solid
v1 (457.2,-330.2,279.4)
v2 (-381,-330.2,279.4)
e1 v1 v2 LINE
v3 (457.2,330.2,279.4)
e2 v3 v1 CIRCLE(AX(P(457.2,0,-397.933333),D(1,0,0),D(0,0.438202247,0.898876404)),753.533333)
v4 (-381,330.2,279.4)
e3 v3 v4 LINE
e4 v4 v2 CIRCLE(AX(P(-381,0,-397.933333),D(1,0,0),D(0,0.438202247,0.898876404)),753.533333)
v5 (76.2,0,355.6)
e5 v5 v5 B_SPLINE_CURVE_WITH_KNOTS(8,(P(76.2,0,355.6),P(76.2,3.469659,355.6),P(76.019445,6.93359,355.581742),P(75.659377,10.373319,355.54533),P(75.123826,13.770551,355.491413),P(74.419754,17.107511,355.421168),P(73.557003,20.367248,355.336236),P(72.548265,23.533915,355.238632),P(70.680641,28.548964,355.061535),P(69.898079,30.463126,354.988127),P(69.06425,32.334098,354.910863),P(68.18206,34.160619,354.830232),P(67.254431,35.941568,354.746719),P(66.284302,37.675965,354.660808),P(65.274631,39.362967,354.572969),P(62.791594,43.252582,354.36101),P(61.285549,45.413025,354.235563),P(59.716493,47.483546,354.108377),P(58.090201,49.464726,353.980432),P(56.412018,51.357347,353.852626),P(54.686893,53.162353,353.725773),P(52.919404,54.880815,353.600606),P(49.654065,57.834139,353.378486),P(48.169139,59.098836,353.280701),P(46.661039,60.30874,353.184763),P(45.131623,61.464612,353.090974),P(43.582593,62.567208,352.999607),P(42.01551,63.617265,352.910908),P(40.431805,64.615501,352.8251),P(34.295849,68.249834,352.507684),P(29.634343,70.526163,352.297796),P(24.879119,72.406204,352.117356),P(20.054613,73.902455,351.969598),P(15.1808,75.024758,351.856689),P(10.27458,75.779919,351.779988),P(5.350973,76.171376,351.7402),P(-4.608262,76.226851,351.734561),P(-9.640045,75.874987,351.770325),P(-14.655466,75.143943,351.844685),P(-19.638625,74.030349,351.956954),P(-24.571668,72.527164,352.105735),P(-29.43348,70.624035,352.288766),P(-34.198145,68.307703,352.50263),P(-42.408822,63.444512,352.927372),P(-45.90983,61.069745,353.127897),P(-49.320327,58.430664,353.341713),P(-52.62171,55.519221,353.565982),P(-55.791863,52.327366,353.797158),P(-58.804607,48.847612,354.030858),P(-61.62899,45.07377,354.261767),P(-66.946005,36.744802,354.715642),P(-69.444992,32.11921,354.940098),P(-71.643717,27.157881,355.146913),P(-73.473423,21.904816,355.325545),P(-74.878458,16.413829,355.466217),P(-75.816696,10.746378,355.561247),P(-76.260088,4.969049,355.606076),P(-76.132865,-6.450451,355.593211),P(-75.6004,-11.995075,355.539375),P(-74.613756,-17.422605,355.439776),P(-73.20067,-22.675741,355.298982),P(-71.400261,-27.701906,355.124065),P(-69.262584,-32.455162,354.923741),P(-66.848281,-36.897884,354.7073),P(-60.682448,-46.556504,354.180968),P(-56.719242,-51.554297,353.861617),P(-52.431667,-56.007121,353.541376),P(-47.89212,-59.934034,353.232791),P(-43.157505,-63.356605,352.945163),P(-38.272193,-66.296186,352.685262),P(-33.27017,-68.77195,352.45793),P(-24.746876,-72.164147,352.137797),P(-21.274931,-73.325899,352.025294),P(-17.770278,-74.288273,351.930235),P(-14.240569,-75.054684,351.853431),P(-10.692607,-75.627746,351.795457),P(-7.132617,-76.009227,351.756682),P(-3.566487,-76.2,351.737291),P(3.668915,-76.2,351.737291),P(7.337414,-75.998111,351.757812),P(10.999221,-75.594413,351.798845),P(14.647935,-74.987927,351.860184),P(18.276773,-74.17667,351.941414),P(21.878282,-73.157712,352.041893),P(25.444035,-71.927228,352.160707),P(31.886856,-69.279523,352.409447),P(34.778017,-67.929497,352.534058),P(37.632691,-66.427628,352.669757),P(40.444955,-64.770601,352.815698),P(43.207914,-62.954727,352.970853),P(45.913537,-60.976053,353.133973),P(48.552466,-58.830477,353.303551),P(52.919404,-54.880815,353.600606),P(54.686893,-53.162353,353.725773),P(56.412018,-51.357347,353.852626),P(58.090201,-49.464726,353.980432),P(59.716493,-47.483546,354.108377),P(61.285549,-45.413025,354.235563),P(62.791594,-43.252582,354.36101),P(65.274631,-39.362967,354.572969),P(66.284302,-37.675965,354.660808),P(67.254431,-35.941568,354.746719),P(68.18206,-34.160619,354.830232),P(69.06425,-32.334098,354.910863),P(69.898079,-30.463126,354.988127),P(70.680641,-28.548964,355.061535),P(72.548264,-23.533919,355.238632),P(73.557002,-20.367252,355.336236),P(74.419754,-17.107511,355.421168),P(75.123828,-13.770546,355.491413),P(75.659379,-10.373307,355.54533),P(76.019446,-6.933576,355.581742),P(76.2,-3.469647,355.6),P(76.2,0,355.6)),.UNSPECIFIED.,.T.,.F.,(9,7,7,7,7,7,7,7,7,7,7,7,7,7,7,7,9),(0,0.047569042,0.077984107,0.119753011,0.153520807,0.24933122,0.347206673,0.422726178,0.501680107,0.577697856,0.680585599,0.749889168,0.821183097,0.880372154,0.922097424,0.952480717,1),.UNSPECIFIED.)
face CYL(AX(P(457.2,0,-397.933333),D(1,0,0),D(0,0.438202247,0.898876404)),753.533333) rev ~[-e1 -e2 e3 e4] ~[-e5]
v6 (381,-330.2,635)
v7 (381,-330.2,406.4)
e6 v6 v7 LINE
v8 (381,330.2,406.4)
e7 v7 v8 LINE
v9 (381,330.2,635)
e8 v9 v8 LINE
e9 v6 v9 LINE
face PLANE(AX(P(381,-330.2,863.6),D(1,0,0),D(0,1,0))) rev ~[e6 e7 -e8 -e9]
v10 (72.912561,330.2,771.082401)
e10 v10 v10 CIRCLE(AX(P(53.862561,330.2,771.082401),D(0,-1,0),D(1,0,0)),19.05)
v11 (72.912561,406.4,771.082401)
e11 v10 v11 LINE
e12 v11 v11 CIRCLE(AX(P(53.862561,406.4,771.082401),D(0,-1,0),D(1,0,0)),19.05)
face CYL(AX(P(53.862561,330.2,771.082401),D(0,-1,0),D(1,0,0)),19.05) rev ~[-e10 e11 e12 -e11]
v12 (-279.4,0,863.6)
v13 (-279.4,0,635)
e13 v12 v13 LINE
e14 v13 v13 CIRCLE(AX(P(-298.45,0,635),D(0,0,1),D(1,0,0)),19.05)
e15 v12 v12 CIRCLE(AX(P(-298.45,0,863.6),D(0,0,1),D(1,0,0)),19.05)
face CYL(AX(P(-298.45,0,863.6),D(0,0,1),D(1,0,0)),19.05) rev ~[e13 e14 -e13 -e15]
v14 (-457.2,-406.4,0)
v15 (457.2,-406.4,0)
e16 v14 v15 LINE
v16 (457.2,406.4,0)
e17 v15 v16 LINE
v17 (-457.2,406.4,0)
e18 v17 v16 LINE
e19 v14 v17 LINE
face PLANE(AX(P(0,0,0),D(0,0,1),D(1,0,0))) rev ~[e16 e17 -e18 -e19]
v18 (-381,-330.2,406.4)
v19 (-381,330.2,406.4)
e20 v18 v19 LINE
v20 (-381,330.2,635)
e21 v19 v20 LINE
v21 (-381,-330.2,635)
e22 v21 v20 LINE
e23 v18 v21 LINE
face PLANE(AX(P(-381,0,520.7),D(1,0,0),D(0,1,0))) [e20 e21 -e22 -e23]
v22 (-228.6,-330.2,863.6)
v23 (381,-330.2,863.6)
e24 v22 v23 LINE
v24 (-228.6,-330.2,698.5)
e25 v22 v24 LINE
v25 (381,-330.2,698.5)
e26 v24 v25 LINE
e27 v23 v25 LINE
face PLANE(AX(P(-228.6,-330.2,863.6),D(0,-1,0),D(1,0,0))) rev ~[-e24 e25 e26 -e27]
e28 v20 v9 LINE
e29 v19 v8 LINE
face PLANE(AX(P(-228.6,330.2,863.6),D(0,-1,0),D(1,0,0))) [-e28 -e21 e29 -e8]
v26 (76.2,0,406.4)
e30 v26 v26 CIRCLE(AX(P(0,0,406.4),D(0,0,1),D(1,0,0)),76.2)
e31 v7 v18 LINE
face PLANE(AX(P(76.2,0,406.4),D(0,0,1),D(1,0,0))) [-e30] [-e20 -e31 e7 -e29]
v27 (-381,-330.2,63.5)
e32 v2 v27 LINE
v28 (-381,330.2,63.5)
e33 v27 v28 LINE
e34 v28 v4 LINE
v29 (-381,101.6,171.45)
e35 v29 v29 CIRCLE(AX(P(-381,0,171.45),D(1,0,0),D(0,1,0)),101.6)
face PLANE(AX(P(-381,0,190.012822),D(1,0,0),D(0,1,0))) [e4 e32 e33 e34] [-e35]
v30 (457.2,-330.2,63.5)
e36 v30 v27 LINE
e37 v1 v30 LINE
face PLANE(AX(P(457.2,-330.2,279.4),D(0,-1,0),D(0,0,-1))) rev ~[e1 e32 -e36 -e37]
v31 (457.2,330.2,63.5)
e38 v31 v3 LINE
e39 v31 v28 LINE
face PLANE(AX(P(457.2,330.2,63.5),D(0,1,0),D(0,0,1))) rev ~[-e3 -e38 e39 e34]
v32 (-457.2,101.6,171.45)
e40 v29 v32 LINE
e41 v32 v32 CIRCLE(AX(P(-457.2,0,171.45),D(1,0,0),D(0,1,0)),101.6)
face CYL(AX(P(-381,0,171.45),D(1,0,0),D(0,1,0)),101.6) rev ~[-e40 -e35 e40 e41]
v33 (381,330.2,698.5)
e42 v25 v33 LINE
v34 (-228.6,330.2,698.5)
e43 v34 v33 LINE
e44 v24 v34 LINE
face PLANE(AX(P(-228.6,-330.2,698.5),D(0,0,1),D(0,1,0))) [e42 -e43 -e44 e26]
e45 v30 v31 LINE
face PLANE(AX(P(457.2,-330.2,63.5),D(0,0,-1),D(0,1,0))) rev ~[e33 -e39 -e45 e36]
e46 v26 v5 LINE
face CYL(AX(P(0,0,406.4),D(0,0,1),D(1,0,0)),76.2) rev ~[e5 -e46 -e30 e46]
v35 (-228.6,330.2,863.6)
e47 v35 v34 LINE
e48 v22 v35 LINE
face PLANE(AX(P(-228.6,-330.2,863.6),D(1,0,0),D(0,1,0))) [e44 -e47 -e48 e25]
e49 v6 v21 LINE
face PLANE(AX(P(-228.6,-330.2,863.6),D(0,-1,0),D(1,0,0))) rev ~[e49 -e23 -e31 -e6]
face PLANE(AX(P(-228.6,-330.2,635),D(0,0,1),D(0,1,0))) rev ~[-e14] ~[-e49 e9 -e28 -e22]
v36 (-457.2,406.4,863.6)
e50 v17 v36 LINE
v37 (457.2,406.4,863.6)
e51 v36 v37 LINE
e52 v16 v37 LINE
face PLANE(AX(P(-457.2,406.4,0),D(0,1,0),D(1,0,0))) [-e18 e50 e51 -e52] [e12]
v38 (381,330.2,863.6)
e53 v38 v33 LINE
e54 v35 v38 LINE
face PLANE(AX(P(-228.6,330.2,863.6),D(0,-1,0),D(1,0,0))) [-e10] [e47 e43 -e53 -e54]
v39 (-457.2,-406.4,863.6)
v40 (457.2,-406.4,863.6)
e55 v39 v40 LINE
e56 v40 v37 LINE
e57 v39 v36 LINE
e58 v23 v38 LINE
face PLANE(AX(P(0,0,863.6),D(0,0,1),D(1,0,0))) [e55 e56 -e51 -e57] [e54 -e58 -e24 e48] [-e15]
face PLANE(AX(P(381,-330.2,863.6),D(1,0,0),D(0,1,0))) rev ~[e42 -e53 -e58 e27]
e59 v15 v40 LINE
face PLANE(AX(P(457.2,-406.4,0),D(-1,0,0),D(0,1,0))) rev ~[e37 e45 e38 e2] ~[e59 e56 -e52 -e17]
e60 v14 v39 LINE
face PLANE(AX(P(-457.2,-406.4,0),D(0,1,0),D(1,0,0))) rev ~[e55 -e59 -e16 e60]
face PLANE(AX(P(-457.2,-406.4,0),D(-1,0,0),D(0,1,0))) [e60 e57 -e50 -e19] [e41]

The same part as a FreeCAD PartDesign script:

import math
import FreeCAD as App
import Part
import Sketcher
from FreeCAD import Vector
Q = App.Units.Quantity

doc = App.newDocument("Part")
body = doc.addObject("PartDesign::Body", "Body")

# Sketch on XY plane
sketch1 = doc.addObject("Sketcher::SketchObject", "Sketch")
body.addObject(sketch1)
sketch1.AttachmentSupport = (doc.XY_Plane, [""])
sketch1.MapMode = "FlatFace"
sketch1.addGeometry([
    Part.LineSegment(Vector(-457, 406, 0), Vector(-457, -406, 0)),
    Part.LineSegment(Vector(-457, -406, 0), Vector(457, -406, 0)),
    Part.LineSegment(Vector(457, -406, 0), Vector(457, 406, 0)),
    Part.LineSegment(Vector(457, 406, 0), Vector(-457, 406, 0)),
], False)
sketch1.addConstraint([
    Sketcher.Constraint("Coincident", 0, 2, 1, 1),
    Sketcher.Constraint("Coincident", 1, 2, 2, 1),
    Sketcher.Constraint("Coincident", 2, 2, 3, 1),
    Sketcher.Constraint("Coincident", 3, 2, 0, 1),
    Sketcher.Constraint("Vertical", 0),
    Sketcher.Constraint("Horizontal", 1),
    Sketcher.Constraint("Vertical", 2),
    Sketcher.Constraint("Horizontal", 3),
    Sketcher.Constraint("Symmetric", 0, 2, 2, 2, -1, 1),
    Sketcher.Constraint("DistanceX", 1, 1, 1, 2, Q("36 in")),
    Sketcher.Constraint("DistanceY", 0, 2, 0, 1, Q("32 in")),
])
pad1 = doc.addObject("PartDesign::Pad", "Pad")
body.addObject(pad1)
pad1.Profile = sketch1
pad1.Length = Q("34 in")

# Sketch on YZ plane
sketch2 = doc.addObject("Sketcher::SketchObject", "Sketch001")
body.addObject(sketch2)
sketch2.AttachmentSupport = (doc.YZ_Plane, [""])
sketch2.MapMode = "FlatFace"
sketch2.AttachmentOffset = App.Placement(Vector(0, 0, 18 * 25.4), App.Rotation())
sketch2.addGeometry([
    Part.LineSegment(Vector(330, 64, 0), Vector(330, 279, 0)),
    Part.ArcOfCircle(Part.Circle(Vector(0, -398, 0), Vector(0, 0, 1), 754), math.radians(64), math.radians(116)),
    Part.LineSegment(Vector(-330, 279, 0), Vector(-330, 64, 0)),
    Part.LineSegment(Vector(-330, 64, 0), Vector(330, 64, 0)),
], False)
sketch2.addConstraint([
    Sketcher.Constraint("Coincident", 0, 2, 1, 1),
    Sketcher.Constraint("Coincident", 1, 2, 2, 1),
    Sketcher.Constraint("Coincident", 2, 2, 3, 1),
    Sketcher.Constraint("Coincident", 3, 2, 0, 1),
    Sketcher.Constraint("Vertical", 0),
    Sketcher.Constraint("Vertical", 2),
    Sketcher.Constraint("Horizontal", 3),
    Sketcher.Constraint("PointOnObject", 1, 3, -2),
    Sketcher.Constraint("Equal", 0, 2),
    Sketcher.Constraint("DistanceX", 3, 1, 3, 2, Q("26 in")),
    Sketcher.Constraint("DistanceY", 0, 1, 0, 2, Q("8.5 in")),
    Sketcher.Constraint("DistanceY", -1, 1, 0, 2, Q("11 in")),
    Sketcher.Constraint("Radius", 1, 753.533333),
])
pocket1 = doc.addObject("PartDesign::Pocket", "Pocket")
body.addObject(pocket1)
pocket1.Profile = sketch2
pocket1.Length = Q("33 in")

# Sketch on XY plane
sketch3 = doc.addObject("Sketcher::SketchObject", "Sketch002")
body.addObject(sketch3)
sketch3.AttachmentSupport = (doc.XY_Plane, [""])
sketch3.MapMode = "FlatFace"
sketch3.AttachmentOffset = App.Placement(Vector(0, 0, 34 * 25.4), App.Rotation())
sketch3.addGeometry([
    Part.LineSegment(Vector(-229, 330, 0), Vector(-229, -330, 0)),
    Part.LineSegment(Vector(-229, -330, 0), Vector(381, -330, 0)),
    Part.LineSegment(Vector(381, -330, 0), Vector(381, 330, 0)),
    Part.LineSegment(Vector(381, 330, 0), Vector(-229, 330, 0)),
], False)
sketch3.addConstraint([
    Sketcher.Constraint("Coincident", 0, 2, 1, 1),
    Sketcher.Constraint("Coincident", 1, 2, 2, 1),
    Sketcher.Constraint("Coincident", 2, 2, 3, 1),
    Sketcher.Constraint("Coincident", 3, 2, 0, 1),
    Sketcher.Constraint("Vertical", 0),
    Sketcher.Constraint("Horizontal", 1),
    Sketcher.Constraint("Vertical", 2),
    Sketcher.Constraint("Horizontal", 3),
    Sketcher.Constraint("DistanceX", 1, 1, 1, 2, Q("24 in")),
    Sketcher.Constraint("DistanceY", 0, 2, 0, 1, Q("26 in")),
    Sketcher.Constraint("DistanceX", 0, 2, -1, 1, Q("9 in")),
    Sketcher.Constraint("DistanceY", 0, 2, -1, 1, Q("13 in")),
])
pocket2 = doc.addObject("PartDesign::Pocket", "Pocket001")
body.addObject(pocket2)
pocket2.Profile = sketch3
pocket2.Length = Q("18 in")

# Sketch on YZ plane
sketch4 = doc.addObject("Sketcher::SketchObject", "Sketch003")
body.addObject(sketch4)
sketch4.AttachmentSupport = (doc.YZ_Plane, [""])
sketch4.MapMode = "FlatFace"
sketch4.AttachmentOffset = App.Placement(Vector(0, 0, -9 * 25.4), App.Rotation())
sketch4.addGeometry([
    Part.LineSegment(Vector(-330, 635, 0), Vector(-330, 406, 0)),
    Part.LineSegment(Vector(-330, 406, 0), Vector(330, 406, 0)),
    Part.LineSegment(Vector(330, 406, 0), Vector(330, 635, 0)),
    Part.LineSegment(Vector(330, 635, 0), Vector(-330, 635, 0)),
], False)
sketch4.addConstraint([
    Sketcher.Constraint("Coincident", 0, 2, 1, 1),
    Sketcher.Constraint("Coincident", 1, 2, 2, 1),
    Sketcher.Constraint("Coincident", 2, 2, 3, 1),
    Sketcher.Constraint("Coincident", 3, 2, 0, 1),
    Sketcher.Constraint("Vertical", 0),
    Sketcher.Constraint("Horizontal", 1),
    Sketcher.Constraint("Vertical", 2),
    Sketcher.Constraint("Horizontal", 3),
    Sketcher.Constraint("DistanceX", 1, 1, 1, 2, Q("26 in")),
    Sketcher.Constraint("DistanceY", 0, 2, 0, 1, Q("9 in")),
    Sketcher.Constraint("DistanceX", 0, 2, -1, 1, Q("13 in")),
    Sketcher.Constraint("DistanceY", -1, 1, 0, 2, Q("16 in")),
])
pocket3 = doc.addObject("PartDesign::Pocket", "Pocket002")
body.addObject(pocket3)
pocket3.Profile = sketch4
pocket3.Length = Q("6 in")

# Sketch on XY plane
sketch5 = doc.addObject("Sketcher::SketchObject", "Sketch004")
body.addObject(sketch5)
sketch5.AttachmentSupport = (doc.XY_Plane, [""])
sketch5.MapMode = "FlatFace"
sketch5.AttachmentOffset = App.Placement(Vector(0, 0, 34 * 25.4), App.Rotation())
sketch5.addGeometry(Part.Circle(Vector(-298, 0, 0), Vector(0, 0, 1), 19), False)
sketch5.addConstraint([
    Sketcher.Constraint("PointOnObject", 0, 3, -1),
    Sketcher.Constraint("Diameter", 0, Q("1.5 in")),
    Sketcher.Constraint("DistanceX", 0, 3, -1, 1, Q("11.75 in")),
])
pocket4 = doc.addObject("PartDesign::Pocket", "Pocket003")
body.addObject(pocket4)
pocket4.Profile = sketch5
pocket4.Length = Q("9 in")

# Sketch on YZ plane
sketch6 = doc.addObject("Sketcher::SketchObject", "Sketch005")
body.addObject(sketch6)
sketch6.AttachmentSupport = (doc.YZ_Plane, [""])
sketch6.MapMode = "FlatFace"
sketch6.AttachmentOffset = App.Placement(Vector(0, 0, -9 * 25.4), App.Rotation())
sketch6.addGeometry([
    Part.LineSegment(Vector(-330, 698, 0), Vector(-330, 635, 0)),
    Part.LineSegment(Vector(-330, 635, 0), Vector(330, 635, 0)),
    Part.LineSegment(Vector(330, 635, 0), Vector(330, 698, 0)),
    Part.LineSegment(Vector(330, 698, 0), Vector(-330, 698, 0)),
], False)
sketch6.addConstraint([
    Sketcher.Constraint("Coincident", 0, 2, 1, 1),
    Sketcher.Constraint("Coincident", 1, 2, 2, 1),
    Sketcher.Constraint("Coincident", 2, 2, 3, 1),
    Sketcher.Constraint("Coincident", 3, 2, 0, 1),
    Sketcher.Constraint("Vertical", 0),
    Sketcher.Constraint("Horizontal", 1),
    Sketcher.Constraint("Vertical", 2),
    Sketcher.Constraint("Horizontal", 3),
    Sketcher.Constraint("DistanceX", 1, 1, 1, 2, Q("26 in")),
    Sketcher.Constraint("DistanceY", 0, 2, 0, 1, Q("2.5 in")),
    Sketcher.Constraint("DistanceX", 0, 2, -1, 1, Q("13 in")),
    Sketcher.Constraint("DistanceY", -1, 1, 0, 2, Q("25 in")),
])
pad2 = doc.addObject("PartDesign::Pad", "Pad001")
body.addObject(pad2)
pad2.Profile = sketch6
pad2.Type = "UpToLast"

# Sketch on XZ plane
sketch7 = doc.addObject("Sketcher::SketchObject", "Sketch006")
body.addObject(sketch7)
sketch7.AttachmentSupport = (doc.XZ_Plane, [""])
sketch7.MapMode = "FlatFace"
sketch7.AttachmentOffset = App.Placement(Vector(0, 0, -13 * 25.4), App.Rotation())
sketch7.addGeometry(Part.Circle(Vector(54, 771, 0), Vector(0, 0, 1), 19), False)
sketch7.addConstraint([
    Sketcher.Constraint("Diameter", 0, Q("1.5 in")),
    Sketcher.Constraint("DistanceY", -1, 1, 0, 3, 771.082401),
    Sketcher.Constraint("DistanceX", -1, 1, 0, 3, 53.862561),
])
pocket5 = doc.addObject("PartDesign::Pocket", "Pocket004")
body.addObject(pocket5)
pocket5.Profile = sketch7
pocket5.Type = "ThroughAll"

# Sketch on XY plane
sketch8 = doc.addObject("Sketcher::SketchObject", "Sketch007")
body.addObject(sketch8)
sketch8.AttachmentSupport = (doc.XY_Plane, [""])
sketch8.MapMode = "FlatFace"
sketch8.AttachmentOffset = App.Placement(Vector(0, 0, 16 * 25.4), App.Rotation())
sketch8.addGeometry(Part.Circle(Vector(0, 0, 0), Vector(0, 0, 1), 76), False)
sketch8.addConstraint([
    Sketcher.Constraint("Coincident", 0, 3, -1, 1),
    Sketcher.Constraint("Diameter", 0, Q("6 in")),
])
pocket6 = doc.addObject("PartDesign::Pocket", "Pocket005")
body.addObject(pocket6)
pocket6.Profile = sketch8
pocket6.Length = 54.663709

# Sketch on YZ plane
sketch9 = doc.addObject("Sketcher::SketchObject", "Sketch008")
body.addObject(sketch9)
sketch9.AttachmentSupport = (doc.YZ_Plane, [""])
sketch9.MapMode = "FlatFace"
sketch9.AttachmentOffset = App.Placement(Vector(0, 0, -15 * 25.4), App.Rotation())
sketch9.addGeometry(Part.Circle(Vector(0, 171, 0), Vector(0, 0, 1), 102), False)
sketch9.addConstraint([
    Sketcher.Constraint("PointOnObject", 0, 3, -2),
    Sketcher.Constraint("Diameter", 0, Q("8 in")),
    Sketcher.Constraint("DistanceY", -1, 1, 0, 3, Q("6.75 in")),
])
pocket7 = doc.addObject("PartDesign::Pocket", "Pocket006")
body.addObject(pocket7)
pocket7.Profile = sketch9
pocket7.Type = "ThroughAll"

doc.recompute()
